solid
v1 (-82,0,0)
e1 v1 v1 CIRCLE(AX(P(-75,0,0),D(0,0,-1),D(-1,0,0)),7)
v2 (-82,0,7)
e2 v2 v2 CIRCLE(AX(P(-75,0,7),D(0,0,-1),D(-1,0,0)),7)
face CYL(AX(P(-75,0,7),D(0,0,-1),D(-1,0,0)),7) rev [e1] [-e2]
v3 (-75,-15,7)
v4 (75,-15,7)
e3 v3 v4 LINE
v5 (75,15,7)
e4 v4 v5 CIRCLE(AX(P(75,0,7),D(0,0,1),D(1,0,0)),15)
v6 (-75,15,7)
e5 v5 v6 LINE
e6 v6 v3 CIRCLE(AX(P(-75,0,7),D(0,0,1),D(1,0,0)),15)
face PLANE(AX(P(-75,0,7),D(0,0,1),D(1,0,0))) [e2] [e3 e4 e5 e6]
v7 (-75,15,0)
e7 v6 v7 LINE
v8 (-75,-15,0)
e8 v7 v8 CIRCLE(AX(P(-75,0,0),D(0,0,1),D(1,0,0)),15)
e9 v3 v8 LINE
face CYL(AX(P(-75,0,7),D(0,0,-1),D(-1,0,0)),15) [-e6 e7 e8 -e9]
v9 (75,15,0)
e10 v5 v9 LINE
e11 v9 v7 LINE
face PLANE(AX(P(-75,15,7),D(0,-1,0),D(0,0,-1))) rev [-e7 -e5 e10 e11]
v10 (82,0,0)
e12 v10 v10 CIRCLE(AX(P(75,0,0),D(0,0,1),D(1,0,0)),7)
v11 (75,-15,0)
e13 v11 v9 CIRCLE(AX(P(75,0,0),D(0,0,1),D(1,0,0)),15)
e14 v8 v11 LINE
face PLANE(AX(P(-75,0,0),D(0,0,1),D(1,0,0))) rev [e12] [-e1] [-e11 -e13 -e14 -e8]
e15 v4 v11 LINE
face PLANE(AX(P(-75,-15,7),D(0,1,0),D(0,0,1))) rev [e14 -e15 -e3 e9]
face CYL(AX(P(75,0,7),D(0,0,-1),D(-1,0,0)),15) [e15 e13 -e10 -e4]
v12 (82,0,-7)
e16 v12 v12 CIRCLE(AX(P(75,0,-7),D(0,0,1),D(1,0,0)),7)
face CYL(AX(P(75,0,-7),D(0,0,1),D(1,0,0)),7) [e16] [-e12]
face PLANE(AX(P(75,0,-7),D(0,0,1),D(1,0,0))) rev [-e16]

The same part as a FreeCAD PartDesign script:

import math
import FreeCAD as App
import Part
import Sketcher

doc = App.newDocument("Part")
body = doc.addObject("PartDesign::Body", "Body")

# Sketch on XY plane
sketch1 = body.newObject("Sketcher::SketchObject", "Sketch")
sketch1.AttachmentSupport = (doc.getObject("XY_Plane"), [""])
sketch1.MapMode = "FlatFace"
sketch1.addGeometry([
    Part.LineSegment(App.Vector(75, 15, 0), App.Vector(-75, 15, 0)),
    Part.ArcOfCircle(Part.Circle(App.Vector(-75, 0, 0), App.Vector(0, 0, 1), 15), math.radians(90), math.radians(270)),
    Part.LineSegment(App.Vector(-75, -15, 0), App.Vector(75, -15, 0)),
    Part.ArcOfCircle(Part.Circle(App.Vector(75, 0, 0), App.Vector(0, 0, 1), 15), math.radians(-90), math.radians(90)),
], False)
sketch1.addConstraint([
    Sketcher.Constraint("Tangent", 0, 2, 1, 1),
    Sketcher.Constraint("Tangent", 1, 2, 2, 1),
    Sketcher.Constraint("Tangent", 2, 2, 3, 1),
    Sketcher.Constraint("Tangent", 3, 2, 0, 1),
    Sketcher.Constraint("Horizontal", 0),
    Sketcher.Constraint("Horizontal", 2),
    Sketcher.Constraint("Symmetric", 1, 3, 3, 3, -1, 1),
    Sketcher.Constraint("Radius", 1, 15.0),
    Sketcher.Constraint("DistanceX", 0, 2, 0, 1, 150.0),
])
pad1 = body.newObject("PartDesign::Pad", "Pad")
pad1.Profile = sketch1
pad1.Length = 7

# Sketch on XY plane
sketch2 = body.newObject("Sketcher::SketchObject", "Sketch001")
sketch2.AttachmentSupport = (doc.getObject("XY_Plane"), [""])
sketch2.MapMode = "FlatFace"
sketch2.addGeometry(Part.Circle(App.Vector(75, 0, 0), App.Vector(0, 0, 1), 7), False)
sketch2.addConstraint([
    Sketcher.Constraint("PointOnObject", 0, 3, -1),
    Sketcher.Constraint("Diameter", 0, 14.0),
    Sketcher.Constraint("DistanceX", -1, 1, 0, 3, 75.0),
])
pad2 = body.newObject("PartDesign::Pad", "Pad001")
pad2.Profile = sketch2
pad2.Length = 7
pad2.Reversed = True

# Sketch on XY plane
sketch3 = body.newObject("Sketcher::SketchObject", "Sketch002")
sketch3.AttachmentSupport = (doc.getObject("XY_Plane"), [""])
sketch3.MapMode = "FlatFace"
sketch3.addGeometry(Part.Circle(App.Vector(-75, 0, 0), App.Vector(0, 0, 1), 7), False)
sketch3.addConstraint([
    Sketcher.Constraint("PointOnObject", 0, 3, -1),
    Sketcher.Constraint("Diameter", 0, 14.0),
    Sketcher.Constraint("DistanceX", 0, 3, -1, 1, 75.0),
])
pocket1 = body.newObject("PartDesign::Pocket", "Pocket")
pocket1.Profile = sketch3
pocket1.Length = 7
pocket1.Reversed = True

doc.recompute()
